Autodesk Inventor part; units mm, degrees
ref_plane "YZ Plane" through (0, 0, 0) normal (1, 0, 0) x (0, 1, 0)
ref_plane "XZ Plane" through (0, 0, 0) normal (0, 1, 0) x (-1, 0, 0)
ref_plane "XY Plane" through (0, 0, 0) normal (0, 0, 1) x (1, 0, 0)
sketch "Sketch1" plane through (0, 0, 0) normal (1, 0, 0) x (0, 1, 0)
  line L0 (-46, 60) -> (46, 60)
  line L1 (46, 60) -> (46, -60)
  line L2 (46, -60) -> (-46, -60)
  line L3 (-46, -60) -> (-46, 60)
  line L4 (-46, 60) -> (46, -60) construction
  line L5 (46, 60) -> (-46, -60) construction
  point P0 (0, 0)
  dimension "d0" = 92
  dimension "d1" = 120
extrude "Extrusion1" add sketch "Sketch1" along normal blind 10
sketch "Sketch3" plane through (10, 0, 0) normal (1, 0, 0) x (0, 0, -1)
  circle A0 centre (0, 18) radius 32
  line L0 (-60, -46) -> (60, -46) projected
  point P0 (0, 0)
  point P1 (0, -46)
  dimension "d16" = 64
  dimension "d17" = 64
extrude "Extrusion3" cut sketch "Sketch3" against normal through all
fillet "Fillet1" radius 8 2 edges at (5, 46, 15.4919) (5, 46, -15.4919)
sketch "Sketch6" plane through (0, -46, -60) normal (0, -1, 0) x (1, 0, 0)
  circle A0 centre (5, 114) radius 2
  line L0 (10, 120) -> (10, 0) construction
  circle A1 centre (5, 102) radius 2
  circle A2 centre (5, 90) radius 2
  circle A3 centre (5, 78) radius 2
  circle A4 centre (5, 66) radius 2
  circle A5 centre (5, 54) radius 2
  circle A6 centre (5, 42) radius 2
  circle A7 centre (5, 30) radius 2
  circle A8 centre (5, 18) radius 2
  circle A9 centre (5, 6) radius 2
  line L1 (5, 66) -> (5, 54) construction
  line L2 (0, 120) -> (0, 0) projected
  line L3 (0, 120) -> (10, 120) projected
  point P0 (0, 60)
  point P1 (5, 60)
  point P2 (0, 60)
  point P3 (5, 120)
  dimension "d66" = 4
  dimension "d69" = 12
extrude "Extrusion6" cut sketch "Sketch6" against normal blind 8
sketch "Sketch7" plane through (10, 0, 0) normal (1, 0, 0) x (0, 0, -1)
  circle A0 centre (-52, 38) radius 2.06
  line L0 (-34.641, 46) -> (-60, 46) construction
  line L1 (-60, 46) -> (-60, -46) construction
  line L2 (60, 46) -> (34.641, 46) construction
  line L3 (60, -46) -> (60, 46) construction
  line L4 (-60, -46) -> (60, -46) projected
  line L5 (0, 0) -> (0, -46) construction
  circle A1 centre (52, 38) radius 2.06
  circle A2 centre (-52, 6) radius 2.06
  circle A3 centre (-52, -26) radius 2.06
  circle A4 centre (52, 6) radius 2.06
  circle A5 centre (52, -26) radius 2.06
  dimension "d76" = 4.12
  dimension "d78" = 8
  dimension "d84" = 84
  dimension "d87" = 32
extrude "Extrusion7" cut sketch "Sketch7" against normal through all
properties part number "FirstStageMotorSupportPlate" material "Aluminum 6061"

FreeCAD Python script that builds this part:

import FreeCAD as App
import Part
import Sketcher
from FreeCAD import Vector
Q = App.Units.Quantity


def edges_at(feature, points):
    """Names of the edges that pass closest to the given points."""
    edges = feature.Shape.Edges
    near = lambda p: min(range(len(edges)), key=lambda i: edges[i].distToShape(Part.Vertex(*p))[0])
    return sorted({f"Edge{near(p) + 1}" for p in points})

doc = App.newDocument("Part")
body = doc.addObject("PartDesign::Body", "Body")

# Sketch on YZ plane
sketch1 = doc.addObject("Sketcher::SketchObject", "Sketch")
body.addObject(sketch1)
sketch1.AttachmentSupport = (doc.YZ_Plane, [""])
sketch1.MapMode = "FlatFace"
sketch1.addGeometry([
    Part.LineSegment(Vector(46, 60, 0), Vector(-46, 60, 0)),
    Part.LineSegment(Vector(-46, 60, 0), Vector(-46, -60, 0)),
    Part.LineSegment(Vector(-46, -60, 0), Vector(46, -60, 0)),
    Part.LineSegment(Vector(46, -60, 0), Vector(46, 60, 0)),
], False)
sketch1.addConstraint([
    Sketcher.Constraint("Coincident", 0, 2, 1, 1),
    Sketcher.Constraint("Coincident", 1, 2, 2, 1),
    Sketcher.Constraint("Coincident", 2, 2, 3, 1),
    Sketcher.Constraint("Coincident", 3, 2, 0, 1),
    Sketcher.Constraint("Horizontal", 0),
    Sketcher.Constraint("Vertical", 1),
    Sketcher.Constraint("Horizontal", 2),
    Sketcher.Constraint("Vertical", 3),
    Sketcher.Constraint("Symmetric", 0, 2, 2, 2, -1, 1),
    Sketcher.Constraint("DistanceX", 0, 2, 0, 1, Q("92 mm")),
    Sketcher.Constraint("DistanceY", 1, 2, 1, 1, Q("120 mm")),
])
pad1 = doc.addObject("PartDesign::Pad", "Pad")
body.addObject(pad1)
pad1.Profile = sketch1
pad1.Length = 10

# Sketch on YZ plane
sketch2 = doc.addObject("Sketcher::SketchObject", "Sketch001")
body.addObject(sketch2)
sketch2.AttachmentSupport = (doc.YZ_Plane, [""])
sketch2.MapMode = "FlatFace"
sketch2.AttachmentOffset = App.Placement(Vector(0, 0, 10), App.Rotation())
sketch2.addGeometry(Part.Circle(Vector(18, 0, 0), Vector(0, 0, 1), 32), False)
sketch2.addConstraint([
    Sketcher.Constraint("PointOnObject", 0, 3, -1),
    Sketcher.Constraint("Diameter", 0, Q("64 mm")),
    Sketcher.Constraint("DistanceX", -1, 1, 0, 3, Q("18 mm")),
])
pocket1 = doc.addObject("PartDesign::Pocket", "Pocket")
body.addObject(pocket1)
pocket1.Profile = sketch2
pocket1.Type = "ThroughAll"
doc.recompute()

fillet = doc.addObject("PartDesign::Fillet", "Fillet")
body.addObject(fillet)
fillet.Base = (pocket1, edges_at(pocket1, [(5, 46, 15.492), (5, 46, -15.492)]))
fillet.Radius = 8

# Sketch on XZ plane
sketch3 = doc.addObject("Sketcher::SketchObject", "Sketch002")
body.addObject(sketch3)
sketch3.AttachmentSupport = (doc.XZ_Plane, [""])
sketch3.MapMode = "FlatFace"
sketch3.AttachmentOffset = App.Placement(Vector(0, 0, 46), App.Rotation())
sketch3.addGeometry([
    Part.Circle(Vector(5, 54, 0), Vector(0, 0, 1), 2),  # 0
    Part.Circle(Vector(5, 42, 0), Vector(0, 0, 1), 2),  # 1
    Part.Circle(Vector(5, 30, 0), Vector(0, 0, 1), 2),  # 2
    Part.Circle(Vector(5, 18, 0), Vector(0, 0, 1), 2),  # 3
    Part.Circle(Vector(5, 6, 0), Vector(0, 0, 1), 2),  # 4
    Part.Circle(Vector(5, -6, 0), Vector(0, 0, 1), 2),  # 5
    Part.Circle(Vector(5, -18, 0), Vector(0, 0, 1), 2),  # 6
    Part.Circle(Vector(5, -30, 0), Vector(0, 0, 1), 2),  # 7
    Part.Circle(Vector(5, -42, 0), Vector(0, 0, 1), 2),  # 8
    Part.Circle(Vector(5, -54, 0), Vector(0, 0, 1), 2),  # 9
], False)
sketch3.addConstraint([
    Sketcher.Constraint("Equal", 0, 1),
    Sketcher.Constraint("Equal", 1, 2),
    Sketcher.Constraint("Equal", 2, 3),
    Sketcher.Constraint("Equal", 3, 4),
    Sketcher.Constraint("Equal", 4, 5),
    Sketcher.Constraint("Equal", 5, 6),
    Sketcher.Constraint("Equal", 6, 7),
    Sketcher.Constraint("Equal", 7, 8),
    Sketcher.Constraint("Equal", 8, 9),
    Sketcher.Constraint("Symmetric", 4, 3, 5, 3, -1),
    Sketcher.Constraint("Symmetric", 3, 3, 6, 3, -1),
    Sketcher.Constraint("Symmetric", 2, 3, 7, 3, -1),
    Sketcher.Constraint("Symmetric", 1, 3, 8, 3, -1),
    Sketcher.Constraint("Symmetric", 0, 3, 9, 3, -1),
    Sketcher.Constraint("Vertical", 0, 3, 1, 3),
    Sketcher.Constraint("Vertical", 1, 3, 2, 3),
    Sketcher.Constraint("Vertical", 2, 3, 3, 3),
    Sketcher.Constraint("Vertical", 3, 3, 4, 3),
    Sketcher.Constraint("Diameter", 0, Q("4 mm")),
    Sketcher.Constraint("DistanceY", 1, 3, 0, 3, Q("12 mm")),
    Sketcher.Constraint("DistanceY", 2, 3, 1, 3, Q("12 mm")),
    Sketcher.Constraint("DistanceY", 3, 3, 2, 3, Q("12 mm")),
    Sketcher.Constraint("DistanceY", 4, 3, 3, 3, Q("12 mm")),
    Sketcher.Constraint("DistanceY", 5, 3, 4, 3, Q("12 mm")),
    Sketcher.Constraint("DistanceX", -1, 1, 0, 3, Q("5 mm")),
])
pocket2 = doc.addObject("PartDesign::Pocket", "Pocket001")
body.addObject(pocket2)
pocket2.Profile = sketch3
pocket2.Length = 8

# Sketch on YZ plane
sketch4 = doc.addObject("Sketcher::SketchObject", "Sketch003")
body.addObject(sketch4)
sketch4.AttachmentSupport = (doc.YZ_Plane, [""])
sketch4.MapMode = "FlatFace"
sketch4.AttachmentOffset = App.Placement(Vector(0, 0, 10), App.Rotation())
sketch4.addGeometry([
    Part.Circle(Vector(38, 52, 0), Vector(0, 0, 1), 2.06),  # 0
    Part.Circle(Vector(38, -52, 0), Vector(0, 0, 1), 2.06),  # 1
    Part.Circle(Vector(6, 52, 0), Vector(0, 0, 1), 2.06),  # 2
    Part.Circle(Vector(-26, 52, 0), Vector(0, 0, 1), 2.06),  # 3
    Part.Circle(Vector(6, -52, 0), Vector(0, 0, 1), 2.06),  # 4
    Part.Circle(Vector(-26, -52, 0), Vector(0, 0, 1), 2.06),  # 5
], False)
sketch4.addConstraint([
    Sketcher.Constraint("Equal", 0, 1),
    Sketcher.Constraint("Equal", 1, 2),
    Sketcher.Constraint("Equal", 2, 3),
    Sketcher.Constraint("Equal", 3, 4),
    Sketcher.Constraint("Equal", 4, 5),
    Sketcher.Constraint("Symmetric", 0, 3, 1, 3, -1),
    Sketcher.Constraint("Symmetric", 2, 3, 4, 3, -1),
    Sketcher.Constraint("Symmetric", 3, 3, 5, 3, -1),
    Sketcher.Constraint("Horizontal", 0, 3, 2, 3),
    Sketcher.Constraint("Horizontal", 2, 3, 3, 3),
    Sketcher.Constraint("Diameter", 0, Q("4.12 mm")),
    Sketcher.Constraint("DistanceX", 2, 3, 0, 3, Q("32 mm")),
    Sketcher.Constraint("DistanceX", 3, 3, 2, 3, Q("32 mm")),
    Sketcher.Constraint("DistanceX", -1, 1, 0, 3, Q("38 mm")),
    Sketcher.Constraint("DistanceY", -1, 1, 0, 3, Q("52 mm")),
])
pocket3 = doc.addObject("PartDesign::Pocket", "Pocket002")
body.addObject(pocket3)
pocket3.Profile = sketch4
pocket3.Type = "ThroughAll"

doc.recompute()
